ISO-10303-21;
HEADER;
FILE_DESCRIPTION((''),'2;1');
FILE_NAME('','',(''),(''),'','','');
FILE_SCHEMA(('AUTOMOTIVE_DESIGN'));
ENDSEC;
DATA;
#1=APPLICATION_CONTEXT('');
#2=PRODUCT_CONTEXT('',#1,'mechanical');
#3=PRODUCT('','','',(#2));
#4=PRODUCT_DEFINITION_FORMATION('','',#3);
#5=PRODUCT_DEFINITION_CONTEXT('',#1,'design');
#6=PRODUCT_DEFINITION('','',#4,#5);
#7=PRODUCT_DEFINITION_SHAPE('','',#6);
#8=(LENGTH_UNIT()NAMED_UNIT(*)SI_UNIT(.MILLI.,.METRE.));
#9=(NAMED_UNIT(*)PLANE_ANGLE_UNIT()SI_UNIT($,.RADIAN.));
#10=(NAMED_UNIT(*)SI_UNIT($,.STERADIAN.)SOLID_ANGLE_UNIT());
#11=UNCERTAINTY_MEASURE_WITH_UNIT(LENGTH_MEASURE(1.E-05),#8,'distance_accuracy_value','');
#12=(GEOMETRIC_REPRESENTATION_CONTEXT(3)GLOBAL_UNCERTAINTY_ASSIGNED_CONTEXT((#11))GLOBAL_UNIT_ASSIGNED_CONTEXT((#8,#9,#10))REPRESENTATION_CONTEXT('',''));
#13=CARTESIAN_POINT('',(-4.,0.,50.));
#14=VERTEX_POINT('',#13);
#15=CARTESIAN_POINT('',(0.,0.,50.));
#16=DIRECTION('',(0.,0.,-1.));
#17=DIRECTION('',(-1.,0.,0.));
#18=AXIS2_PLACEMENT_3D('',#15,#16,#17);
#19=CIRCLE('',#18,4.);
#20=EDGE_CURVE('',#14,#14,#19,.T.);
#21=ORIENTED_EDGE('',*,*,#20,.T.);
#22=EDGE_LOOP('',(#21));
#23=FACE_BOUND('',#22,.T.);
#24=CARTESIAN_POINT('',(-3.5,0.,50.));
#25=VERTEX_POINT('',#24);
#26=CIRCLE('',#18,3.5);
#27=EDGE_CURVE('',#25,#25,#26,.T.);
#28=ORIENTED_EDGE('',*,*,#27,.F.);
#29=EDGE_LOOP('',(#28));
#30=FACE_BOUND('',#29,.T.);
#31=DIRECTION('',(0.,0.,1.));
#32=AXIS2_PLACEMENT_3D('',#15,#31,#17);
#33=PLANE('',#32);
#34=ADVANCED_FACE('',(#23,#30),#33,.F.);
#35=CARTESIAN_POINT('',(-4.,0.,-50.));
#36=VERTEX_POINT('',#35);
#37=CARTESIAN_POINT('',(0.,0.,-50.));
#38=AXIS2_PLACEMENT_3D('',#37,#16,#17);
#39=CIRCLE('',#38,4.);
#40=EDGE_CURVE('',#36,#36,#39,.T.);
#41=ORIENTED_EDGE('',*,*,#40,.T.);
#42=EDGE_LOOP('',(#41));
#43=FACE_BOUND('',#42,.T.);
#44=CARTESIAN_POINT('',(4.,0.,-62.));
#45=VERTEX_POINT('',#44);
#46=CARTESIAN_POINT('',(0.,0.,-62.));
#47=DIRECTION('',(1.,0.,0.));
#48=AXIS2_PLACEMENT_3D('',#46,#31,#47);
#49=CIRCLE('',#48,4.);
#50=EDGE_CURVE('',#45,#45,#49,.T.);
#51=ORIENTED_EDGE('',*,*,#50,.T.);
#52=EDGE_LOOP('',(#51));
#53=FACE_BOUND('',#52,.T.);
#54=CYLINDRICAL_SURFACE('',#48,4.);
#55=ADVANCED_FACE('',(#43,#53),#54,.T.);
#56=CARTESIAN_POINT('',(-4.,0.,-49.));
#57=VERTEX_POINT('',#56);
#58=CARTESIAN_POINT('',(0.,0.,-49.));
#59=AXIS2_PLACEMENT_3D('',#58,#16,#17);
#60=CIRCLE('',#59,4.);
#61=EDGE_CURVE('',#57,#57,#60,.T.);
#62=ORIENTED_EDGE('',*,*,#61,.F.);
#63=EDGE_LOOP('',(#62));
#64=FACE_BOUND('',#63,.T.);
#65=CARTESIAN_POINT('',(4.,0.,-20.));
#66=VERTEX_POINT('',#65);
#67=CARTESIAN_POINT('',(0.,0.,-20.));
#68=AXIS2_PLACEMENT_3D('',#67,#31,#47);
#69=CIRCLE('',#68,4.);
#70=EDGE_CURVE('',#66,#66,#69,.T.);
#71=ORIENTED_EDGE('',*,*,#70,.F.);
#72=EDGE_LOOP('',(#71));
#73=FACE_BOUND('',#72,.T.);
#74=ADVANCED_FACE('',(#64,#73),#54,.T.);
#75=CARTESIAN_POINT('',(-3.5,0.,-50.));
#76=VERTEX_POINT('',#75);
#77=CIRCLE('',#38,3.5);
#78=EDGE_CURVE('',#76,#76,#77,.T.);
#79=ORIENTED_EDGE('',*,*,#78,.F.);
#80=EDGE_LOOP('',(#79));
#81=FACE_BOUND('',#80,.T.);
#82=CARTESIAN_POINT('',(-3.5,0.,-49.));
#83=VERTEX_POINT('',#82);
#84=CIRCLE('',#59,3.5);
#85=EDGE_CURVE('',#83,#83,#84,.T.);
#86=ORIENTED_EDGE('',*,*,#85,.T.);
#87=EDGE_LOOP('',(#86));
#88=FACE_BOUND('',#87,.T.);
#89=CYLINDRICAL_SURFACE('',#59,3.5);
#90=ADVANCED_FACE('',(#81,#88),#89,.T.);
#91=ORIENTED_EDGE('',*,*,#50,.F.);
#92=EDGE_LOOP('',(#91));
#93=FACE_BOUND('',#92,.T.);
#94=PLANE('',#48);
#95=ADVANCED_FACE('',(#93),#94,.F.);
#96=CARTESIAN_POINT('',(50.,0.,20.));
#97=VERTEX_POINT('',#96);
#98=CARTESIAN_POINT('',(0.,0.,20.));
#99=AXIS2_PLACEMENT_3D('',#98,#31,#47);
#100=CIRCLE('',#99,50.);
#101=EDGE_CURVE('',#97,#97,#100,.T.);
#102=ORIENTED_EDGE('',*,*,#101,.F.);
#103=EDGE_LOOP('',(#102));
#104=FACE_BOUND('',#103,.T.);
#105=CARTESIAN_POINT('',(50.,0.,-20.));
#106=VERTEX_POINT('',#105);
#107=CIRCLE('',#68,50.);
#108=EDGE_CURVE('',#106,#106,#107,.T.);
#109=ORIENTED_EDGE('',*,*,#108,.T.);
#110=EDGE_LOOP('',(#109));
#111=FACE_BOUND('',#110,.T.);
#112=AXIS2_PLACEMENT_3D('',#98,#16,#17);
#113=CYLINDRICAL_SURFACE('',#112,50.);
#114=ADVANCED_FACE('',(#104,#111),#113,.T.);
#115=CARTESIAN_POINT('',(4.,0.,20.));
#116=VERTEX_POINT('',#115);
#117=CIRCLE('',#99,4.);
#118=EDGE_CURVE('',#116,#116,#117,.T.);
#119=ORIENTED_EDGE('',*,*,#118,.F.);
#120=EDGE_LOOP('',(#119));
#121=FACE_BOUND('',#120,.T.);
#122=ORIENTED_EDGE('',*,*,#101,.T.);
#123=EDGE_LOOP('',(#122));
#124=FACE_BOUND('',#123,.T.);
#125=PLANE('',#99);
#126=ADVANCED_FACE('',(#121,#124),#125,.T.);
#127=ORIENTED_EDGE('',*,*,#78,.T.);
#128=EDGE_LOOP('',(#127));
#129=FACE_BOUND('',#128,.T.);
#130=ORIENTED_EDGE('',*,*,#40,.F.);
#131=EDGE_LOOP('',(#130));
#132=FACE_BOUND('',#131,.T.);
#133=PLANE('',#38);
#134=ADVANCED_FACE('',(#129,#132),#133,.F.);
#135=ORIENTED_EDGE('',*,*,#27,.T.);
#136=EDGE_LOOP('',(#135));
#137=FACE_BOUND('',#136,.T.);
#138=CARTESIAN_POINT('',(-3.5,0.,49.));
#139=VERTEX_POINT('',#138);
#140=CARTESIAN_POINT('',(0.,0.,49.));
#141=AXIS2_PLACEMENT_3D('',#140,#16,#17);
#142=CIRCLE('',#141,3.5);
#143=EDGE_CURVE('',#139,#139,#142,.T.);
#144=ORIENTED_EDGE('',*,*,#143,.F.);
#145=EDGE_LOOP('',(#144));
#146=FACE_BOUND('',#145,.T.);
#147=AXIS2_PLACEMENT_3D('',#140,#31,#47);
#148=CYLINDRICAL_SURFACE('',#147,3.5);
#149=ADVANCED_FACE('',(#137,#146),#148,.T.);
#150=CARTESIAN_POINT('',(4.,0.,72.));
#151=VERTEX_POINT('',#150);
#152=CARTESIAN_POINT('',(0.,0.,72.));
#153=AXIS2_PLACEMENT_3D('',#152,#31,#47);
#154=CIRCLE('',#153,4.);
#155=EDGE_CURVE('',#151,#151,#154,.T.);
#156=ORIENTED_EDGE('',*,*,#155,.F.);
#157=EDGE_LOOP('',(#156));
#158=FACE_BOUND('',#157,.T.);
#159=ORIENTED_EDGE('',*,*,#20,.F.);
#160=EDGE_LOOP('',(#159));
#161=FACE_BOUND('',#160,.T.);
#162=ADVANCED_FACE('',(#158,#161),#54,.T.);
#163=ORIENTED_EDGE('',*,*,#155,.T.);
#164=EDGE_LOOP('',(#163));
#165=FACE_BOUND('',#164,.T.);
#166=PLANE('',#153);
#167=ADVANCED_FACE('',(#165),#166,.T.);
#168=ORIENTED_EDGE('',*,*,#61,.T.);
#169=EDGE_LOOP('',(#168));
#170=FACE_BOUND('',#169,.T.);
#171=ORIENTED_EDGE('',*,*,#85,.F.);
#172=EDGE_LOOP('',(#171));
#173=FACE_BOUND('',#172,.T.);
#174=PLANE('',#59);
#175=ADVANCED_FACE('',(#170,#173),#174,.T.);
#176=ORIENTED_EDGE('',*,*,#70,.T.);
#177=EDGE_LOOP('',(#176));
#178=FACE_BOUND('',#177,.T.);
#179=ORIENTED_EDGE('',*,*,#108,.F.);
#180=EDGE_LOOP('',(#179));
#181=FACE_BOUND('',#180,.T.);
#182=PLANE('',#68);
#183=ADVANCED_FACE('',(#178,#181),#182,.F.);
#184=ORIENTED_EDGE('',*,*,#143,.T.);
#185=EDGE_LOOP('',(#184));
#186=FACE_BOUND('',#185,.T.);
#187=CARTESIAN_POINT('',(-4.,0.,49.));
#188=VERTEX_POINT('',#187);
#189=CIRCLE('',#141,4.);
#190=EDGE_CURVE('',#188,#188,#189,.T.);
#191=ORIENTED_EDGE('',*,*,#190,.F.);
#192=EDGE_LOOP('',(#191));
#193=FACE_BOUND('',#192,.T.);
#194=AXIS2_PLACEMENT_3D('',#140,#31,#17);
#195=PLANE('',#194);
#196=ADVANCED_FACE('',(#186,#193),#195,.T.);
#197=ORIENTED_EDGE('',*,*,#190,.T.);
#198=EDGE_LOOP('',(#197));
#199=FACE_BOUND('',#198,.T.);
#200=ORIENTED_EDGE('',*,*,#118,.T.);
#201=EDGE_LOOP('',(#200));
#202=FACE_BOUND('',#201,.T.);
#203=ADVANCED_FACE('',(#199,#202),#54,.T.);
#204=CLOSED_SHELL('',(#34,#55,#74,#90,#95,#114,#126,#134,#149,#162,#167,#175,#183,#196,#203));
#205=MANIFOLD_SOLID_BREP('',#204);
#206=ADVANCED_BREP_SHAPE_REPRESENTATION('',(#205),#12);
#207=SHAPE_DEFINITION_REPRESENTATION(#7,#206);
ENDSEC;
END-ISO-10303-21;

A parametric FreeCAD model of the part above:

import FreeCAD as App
import Part
import Sketcher
from FreeCAD import Vector
Q = App.Units.Quantity

doc = App.newDocument("Part")
body = doc.addObject("PartDesign::Body", "Body")

sketch1 = doc.addObject("Sketcher::SketchObject", "Sketch")
body.addObject(sketch1)
sketch1.AttachmentSupport = (doc.XY_Plane, [""])
sketch1.MapMode = "FlatFace"
sketch1.addGeometry(Part.Circle(Vector(0, 0, 0), Vector(0, 0, 1), 50), False)
sketch1.addConstraint(Sketcher.Constraint("Coincident", 0, 3, -1, 1))
sketch1.addConstraint(Sketcher.Constraint("Diameter", 0, Q("100 mm")))
pad1 = doc.addObject("PartDesign::Pad", "Pad")
body.addObject(pad1)
pad1.Profile = sketch1
pad1.Length = 40
pad1.Midplane = True

sketch2 = doc.addObject("Sketcher::SketchObject", "Sketch001")
body.addObject(sketch2)
sketch2.AttachmentSupport = (doc.XY_Plane, [""])
sketch2.MapMode = "FlatFace"
sketch2.AttachmentOffset = App.Placement(Vector(0, 0, 20), App.Rotation())
sketch2.addGeometry(Part.Circle(Vector(0, 0, 0), Vector(0, 0, 1), 4), False)
sketch2.addConstraint(Sketcher.Constraint("Coincident", 0, 3, -1, 1))
sketch2.addConstraint(Sketcher.Constraint("Diameter", 0, Q("8 mm")))
pad2 = doc.addObject("PartDesign::Pad", "Pad001")
body.addObject(pad2)
pad2.Profile = sketch2
pad2.Type = "TwoLengths"
pad2.Length = 52
pad2.Length2 = 82

sketch3 = doc.addObject("Sketcher::SketchObject", "Sketch002")
body.addObject(sketch3)
sketch3.AttachmentSupport = (doc.XY_Plane, [""])
sketch3.MapMode = "FlatFace"
sketch3.AttachmentOffset = App.Placement(Vector(0, 0, -50), App.Rotation())
sketch3.addGeometry(Part.Circle(Vector(0, 0, 0), Vector(0, 0, 1), 4), False)
sketch3.addGeometry(Part.Circle(Vector(0, 0, 0), Vector(0, 0, 1), 3.5), False)
sketch3.addConstraint(Sketcher.Constraint("Coincident", 0, 3, -1, 1))
sketch3.addConstraint(Sketcher.Constraint("Coincident", 1, 3, -1, 1))
sketch3.addConstraint(Sketcher.Constraint("Diameter", 0, Q("8 mm")))
sketch3.addConstraint(Sketcher.Constraint("Diameter", 1, Q("7 mm")))
pocket1 = doc.addObject("PartDesign::Pocket", "Pocket")
body.addObject(pocket1)
pocket1.Profile = sketch3
pocket1.Length = 1
pocket1.Reversed = True
doc.recompute()

mirrored = doc.addObject("PartDesign::Mirrored", "Mirrored")
body.addObject(mirrored)
mirrored.Originals = [pocket1]
mirrored.MirrorPlane = (doc.XY_Plane, [""])
body.Tip = mirrored

doc.recompute()
